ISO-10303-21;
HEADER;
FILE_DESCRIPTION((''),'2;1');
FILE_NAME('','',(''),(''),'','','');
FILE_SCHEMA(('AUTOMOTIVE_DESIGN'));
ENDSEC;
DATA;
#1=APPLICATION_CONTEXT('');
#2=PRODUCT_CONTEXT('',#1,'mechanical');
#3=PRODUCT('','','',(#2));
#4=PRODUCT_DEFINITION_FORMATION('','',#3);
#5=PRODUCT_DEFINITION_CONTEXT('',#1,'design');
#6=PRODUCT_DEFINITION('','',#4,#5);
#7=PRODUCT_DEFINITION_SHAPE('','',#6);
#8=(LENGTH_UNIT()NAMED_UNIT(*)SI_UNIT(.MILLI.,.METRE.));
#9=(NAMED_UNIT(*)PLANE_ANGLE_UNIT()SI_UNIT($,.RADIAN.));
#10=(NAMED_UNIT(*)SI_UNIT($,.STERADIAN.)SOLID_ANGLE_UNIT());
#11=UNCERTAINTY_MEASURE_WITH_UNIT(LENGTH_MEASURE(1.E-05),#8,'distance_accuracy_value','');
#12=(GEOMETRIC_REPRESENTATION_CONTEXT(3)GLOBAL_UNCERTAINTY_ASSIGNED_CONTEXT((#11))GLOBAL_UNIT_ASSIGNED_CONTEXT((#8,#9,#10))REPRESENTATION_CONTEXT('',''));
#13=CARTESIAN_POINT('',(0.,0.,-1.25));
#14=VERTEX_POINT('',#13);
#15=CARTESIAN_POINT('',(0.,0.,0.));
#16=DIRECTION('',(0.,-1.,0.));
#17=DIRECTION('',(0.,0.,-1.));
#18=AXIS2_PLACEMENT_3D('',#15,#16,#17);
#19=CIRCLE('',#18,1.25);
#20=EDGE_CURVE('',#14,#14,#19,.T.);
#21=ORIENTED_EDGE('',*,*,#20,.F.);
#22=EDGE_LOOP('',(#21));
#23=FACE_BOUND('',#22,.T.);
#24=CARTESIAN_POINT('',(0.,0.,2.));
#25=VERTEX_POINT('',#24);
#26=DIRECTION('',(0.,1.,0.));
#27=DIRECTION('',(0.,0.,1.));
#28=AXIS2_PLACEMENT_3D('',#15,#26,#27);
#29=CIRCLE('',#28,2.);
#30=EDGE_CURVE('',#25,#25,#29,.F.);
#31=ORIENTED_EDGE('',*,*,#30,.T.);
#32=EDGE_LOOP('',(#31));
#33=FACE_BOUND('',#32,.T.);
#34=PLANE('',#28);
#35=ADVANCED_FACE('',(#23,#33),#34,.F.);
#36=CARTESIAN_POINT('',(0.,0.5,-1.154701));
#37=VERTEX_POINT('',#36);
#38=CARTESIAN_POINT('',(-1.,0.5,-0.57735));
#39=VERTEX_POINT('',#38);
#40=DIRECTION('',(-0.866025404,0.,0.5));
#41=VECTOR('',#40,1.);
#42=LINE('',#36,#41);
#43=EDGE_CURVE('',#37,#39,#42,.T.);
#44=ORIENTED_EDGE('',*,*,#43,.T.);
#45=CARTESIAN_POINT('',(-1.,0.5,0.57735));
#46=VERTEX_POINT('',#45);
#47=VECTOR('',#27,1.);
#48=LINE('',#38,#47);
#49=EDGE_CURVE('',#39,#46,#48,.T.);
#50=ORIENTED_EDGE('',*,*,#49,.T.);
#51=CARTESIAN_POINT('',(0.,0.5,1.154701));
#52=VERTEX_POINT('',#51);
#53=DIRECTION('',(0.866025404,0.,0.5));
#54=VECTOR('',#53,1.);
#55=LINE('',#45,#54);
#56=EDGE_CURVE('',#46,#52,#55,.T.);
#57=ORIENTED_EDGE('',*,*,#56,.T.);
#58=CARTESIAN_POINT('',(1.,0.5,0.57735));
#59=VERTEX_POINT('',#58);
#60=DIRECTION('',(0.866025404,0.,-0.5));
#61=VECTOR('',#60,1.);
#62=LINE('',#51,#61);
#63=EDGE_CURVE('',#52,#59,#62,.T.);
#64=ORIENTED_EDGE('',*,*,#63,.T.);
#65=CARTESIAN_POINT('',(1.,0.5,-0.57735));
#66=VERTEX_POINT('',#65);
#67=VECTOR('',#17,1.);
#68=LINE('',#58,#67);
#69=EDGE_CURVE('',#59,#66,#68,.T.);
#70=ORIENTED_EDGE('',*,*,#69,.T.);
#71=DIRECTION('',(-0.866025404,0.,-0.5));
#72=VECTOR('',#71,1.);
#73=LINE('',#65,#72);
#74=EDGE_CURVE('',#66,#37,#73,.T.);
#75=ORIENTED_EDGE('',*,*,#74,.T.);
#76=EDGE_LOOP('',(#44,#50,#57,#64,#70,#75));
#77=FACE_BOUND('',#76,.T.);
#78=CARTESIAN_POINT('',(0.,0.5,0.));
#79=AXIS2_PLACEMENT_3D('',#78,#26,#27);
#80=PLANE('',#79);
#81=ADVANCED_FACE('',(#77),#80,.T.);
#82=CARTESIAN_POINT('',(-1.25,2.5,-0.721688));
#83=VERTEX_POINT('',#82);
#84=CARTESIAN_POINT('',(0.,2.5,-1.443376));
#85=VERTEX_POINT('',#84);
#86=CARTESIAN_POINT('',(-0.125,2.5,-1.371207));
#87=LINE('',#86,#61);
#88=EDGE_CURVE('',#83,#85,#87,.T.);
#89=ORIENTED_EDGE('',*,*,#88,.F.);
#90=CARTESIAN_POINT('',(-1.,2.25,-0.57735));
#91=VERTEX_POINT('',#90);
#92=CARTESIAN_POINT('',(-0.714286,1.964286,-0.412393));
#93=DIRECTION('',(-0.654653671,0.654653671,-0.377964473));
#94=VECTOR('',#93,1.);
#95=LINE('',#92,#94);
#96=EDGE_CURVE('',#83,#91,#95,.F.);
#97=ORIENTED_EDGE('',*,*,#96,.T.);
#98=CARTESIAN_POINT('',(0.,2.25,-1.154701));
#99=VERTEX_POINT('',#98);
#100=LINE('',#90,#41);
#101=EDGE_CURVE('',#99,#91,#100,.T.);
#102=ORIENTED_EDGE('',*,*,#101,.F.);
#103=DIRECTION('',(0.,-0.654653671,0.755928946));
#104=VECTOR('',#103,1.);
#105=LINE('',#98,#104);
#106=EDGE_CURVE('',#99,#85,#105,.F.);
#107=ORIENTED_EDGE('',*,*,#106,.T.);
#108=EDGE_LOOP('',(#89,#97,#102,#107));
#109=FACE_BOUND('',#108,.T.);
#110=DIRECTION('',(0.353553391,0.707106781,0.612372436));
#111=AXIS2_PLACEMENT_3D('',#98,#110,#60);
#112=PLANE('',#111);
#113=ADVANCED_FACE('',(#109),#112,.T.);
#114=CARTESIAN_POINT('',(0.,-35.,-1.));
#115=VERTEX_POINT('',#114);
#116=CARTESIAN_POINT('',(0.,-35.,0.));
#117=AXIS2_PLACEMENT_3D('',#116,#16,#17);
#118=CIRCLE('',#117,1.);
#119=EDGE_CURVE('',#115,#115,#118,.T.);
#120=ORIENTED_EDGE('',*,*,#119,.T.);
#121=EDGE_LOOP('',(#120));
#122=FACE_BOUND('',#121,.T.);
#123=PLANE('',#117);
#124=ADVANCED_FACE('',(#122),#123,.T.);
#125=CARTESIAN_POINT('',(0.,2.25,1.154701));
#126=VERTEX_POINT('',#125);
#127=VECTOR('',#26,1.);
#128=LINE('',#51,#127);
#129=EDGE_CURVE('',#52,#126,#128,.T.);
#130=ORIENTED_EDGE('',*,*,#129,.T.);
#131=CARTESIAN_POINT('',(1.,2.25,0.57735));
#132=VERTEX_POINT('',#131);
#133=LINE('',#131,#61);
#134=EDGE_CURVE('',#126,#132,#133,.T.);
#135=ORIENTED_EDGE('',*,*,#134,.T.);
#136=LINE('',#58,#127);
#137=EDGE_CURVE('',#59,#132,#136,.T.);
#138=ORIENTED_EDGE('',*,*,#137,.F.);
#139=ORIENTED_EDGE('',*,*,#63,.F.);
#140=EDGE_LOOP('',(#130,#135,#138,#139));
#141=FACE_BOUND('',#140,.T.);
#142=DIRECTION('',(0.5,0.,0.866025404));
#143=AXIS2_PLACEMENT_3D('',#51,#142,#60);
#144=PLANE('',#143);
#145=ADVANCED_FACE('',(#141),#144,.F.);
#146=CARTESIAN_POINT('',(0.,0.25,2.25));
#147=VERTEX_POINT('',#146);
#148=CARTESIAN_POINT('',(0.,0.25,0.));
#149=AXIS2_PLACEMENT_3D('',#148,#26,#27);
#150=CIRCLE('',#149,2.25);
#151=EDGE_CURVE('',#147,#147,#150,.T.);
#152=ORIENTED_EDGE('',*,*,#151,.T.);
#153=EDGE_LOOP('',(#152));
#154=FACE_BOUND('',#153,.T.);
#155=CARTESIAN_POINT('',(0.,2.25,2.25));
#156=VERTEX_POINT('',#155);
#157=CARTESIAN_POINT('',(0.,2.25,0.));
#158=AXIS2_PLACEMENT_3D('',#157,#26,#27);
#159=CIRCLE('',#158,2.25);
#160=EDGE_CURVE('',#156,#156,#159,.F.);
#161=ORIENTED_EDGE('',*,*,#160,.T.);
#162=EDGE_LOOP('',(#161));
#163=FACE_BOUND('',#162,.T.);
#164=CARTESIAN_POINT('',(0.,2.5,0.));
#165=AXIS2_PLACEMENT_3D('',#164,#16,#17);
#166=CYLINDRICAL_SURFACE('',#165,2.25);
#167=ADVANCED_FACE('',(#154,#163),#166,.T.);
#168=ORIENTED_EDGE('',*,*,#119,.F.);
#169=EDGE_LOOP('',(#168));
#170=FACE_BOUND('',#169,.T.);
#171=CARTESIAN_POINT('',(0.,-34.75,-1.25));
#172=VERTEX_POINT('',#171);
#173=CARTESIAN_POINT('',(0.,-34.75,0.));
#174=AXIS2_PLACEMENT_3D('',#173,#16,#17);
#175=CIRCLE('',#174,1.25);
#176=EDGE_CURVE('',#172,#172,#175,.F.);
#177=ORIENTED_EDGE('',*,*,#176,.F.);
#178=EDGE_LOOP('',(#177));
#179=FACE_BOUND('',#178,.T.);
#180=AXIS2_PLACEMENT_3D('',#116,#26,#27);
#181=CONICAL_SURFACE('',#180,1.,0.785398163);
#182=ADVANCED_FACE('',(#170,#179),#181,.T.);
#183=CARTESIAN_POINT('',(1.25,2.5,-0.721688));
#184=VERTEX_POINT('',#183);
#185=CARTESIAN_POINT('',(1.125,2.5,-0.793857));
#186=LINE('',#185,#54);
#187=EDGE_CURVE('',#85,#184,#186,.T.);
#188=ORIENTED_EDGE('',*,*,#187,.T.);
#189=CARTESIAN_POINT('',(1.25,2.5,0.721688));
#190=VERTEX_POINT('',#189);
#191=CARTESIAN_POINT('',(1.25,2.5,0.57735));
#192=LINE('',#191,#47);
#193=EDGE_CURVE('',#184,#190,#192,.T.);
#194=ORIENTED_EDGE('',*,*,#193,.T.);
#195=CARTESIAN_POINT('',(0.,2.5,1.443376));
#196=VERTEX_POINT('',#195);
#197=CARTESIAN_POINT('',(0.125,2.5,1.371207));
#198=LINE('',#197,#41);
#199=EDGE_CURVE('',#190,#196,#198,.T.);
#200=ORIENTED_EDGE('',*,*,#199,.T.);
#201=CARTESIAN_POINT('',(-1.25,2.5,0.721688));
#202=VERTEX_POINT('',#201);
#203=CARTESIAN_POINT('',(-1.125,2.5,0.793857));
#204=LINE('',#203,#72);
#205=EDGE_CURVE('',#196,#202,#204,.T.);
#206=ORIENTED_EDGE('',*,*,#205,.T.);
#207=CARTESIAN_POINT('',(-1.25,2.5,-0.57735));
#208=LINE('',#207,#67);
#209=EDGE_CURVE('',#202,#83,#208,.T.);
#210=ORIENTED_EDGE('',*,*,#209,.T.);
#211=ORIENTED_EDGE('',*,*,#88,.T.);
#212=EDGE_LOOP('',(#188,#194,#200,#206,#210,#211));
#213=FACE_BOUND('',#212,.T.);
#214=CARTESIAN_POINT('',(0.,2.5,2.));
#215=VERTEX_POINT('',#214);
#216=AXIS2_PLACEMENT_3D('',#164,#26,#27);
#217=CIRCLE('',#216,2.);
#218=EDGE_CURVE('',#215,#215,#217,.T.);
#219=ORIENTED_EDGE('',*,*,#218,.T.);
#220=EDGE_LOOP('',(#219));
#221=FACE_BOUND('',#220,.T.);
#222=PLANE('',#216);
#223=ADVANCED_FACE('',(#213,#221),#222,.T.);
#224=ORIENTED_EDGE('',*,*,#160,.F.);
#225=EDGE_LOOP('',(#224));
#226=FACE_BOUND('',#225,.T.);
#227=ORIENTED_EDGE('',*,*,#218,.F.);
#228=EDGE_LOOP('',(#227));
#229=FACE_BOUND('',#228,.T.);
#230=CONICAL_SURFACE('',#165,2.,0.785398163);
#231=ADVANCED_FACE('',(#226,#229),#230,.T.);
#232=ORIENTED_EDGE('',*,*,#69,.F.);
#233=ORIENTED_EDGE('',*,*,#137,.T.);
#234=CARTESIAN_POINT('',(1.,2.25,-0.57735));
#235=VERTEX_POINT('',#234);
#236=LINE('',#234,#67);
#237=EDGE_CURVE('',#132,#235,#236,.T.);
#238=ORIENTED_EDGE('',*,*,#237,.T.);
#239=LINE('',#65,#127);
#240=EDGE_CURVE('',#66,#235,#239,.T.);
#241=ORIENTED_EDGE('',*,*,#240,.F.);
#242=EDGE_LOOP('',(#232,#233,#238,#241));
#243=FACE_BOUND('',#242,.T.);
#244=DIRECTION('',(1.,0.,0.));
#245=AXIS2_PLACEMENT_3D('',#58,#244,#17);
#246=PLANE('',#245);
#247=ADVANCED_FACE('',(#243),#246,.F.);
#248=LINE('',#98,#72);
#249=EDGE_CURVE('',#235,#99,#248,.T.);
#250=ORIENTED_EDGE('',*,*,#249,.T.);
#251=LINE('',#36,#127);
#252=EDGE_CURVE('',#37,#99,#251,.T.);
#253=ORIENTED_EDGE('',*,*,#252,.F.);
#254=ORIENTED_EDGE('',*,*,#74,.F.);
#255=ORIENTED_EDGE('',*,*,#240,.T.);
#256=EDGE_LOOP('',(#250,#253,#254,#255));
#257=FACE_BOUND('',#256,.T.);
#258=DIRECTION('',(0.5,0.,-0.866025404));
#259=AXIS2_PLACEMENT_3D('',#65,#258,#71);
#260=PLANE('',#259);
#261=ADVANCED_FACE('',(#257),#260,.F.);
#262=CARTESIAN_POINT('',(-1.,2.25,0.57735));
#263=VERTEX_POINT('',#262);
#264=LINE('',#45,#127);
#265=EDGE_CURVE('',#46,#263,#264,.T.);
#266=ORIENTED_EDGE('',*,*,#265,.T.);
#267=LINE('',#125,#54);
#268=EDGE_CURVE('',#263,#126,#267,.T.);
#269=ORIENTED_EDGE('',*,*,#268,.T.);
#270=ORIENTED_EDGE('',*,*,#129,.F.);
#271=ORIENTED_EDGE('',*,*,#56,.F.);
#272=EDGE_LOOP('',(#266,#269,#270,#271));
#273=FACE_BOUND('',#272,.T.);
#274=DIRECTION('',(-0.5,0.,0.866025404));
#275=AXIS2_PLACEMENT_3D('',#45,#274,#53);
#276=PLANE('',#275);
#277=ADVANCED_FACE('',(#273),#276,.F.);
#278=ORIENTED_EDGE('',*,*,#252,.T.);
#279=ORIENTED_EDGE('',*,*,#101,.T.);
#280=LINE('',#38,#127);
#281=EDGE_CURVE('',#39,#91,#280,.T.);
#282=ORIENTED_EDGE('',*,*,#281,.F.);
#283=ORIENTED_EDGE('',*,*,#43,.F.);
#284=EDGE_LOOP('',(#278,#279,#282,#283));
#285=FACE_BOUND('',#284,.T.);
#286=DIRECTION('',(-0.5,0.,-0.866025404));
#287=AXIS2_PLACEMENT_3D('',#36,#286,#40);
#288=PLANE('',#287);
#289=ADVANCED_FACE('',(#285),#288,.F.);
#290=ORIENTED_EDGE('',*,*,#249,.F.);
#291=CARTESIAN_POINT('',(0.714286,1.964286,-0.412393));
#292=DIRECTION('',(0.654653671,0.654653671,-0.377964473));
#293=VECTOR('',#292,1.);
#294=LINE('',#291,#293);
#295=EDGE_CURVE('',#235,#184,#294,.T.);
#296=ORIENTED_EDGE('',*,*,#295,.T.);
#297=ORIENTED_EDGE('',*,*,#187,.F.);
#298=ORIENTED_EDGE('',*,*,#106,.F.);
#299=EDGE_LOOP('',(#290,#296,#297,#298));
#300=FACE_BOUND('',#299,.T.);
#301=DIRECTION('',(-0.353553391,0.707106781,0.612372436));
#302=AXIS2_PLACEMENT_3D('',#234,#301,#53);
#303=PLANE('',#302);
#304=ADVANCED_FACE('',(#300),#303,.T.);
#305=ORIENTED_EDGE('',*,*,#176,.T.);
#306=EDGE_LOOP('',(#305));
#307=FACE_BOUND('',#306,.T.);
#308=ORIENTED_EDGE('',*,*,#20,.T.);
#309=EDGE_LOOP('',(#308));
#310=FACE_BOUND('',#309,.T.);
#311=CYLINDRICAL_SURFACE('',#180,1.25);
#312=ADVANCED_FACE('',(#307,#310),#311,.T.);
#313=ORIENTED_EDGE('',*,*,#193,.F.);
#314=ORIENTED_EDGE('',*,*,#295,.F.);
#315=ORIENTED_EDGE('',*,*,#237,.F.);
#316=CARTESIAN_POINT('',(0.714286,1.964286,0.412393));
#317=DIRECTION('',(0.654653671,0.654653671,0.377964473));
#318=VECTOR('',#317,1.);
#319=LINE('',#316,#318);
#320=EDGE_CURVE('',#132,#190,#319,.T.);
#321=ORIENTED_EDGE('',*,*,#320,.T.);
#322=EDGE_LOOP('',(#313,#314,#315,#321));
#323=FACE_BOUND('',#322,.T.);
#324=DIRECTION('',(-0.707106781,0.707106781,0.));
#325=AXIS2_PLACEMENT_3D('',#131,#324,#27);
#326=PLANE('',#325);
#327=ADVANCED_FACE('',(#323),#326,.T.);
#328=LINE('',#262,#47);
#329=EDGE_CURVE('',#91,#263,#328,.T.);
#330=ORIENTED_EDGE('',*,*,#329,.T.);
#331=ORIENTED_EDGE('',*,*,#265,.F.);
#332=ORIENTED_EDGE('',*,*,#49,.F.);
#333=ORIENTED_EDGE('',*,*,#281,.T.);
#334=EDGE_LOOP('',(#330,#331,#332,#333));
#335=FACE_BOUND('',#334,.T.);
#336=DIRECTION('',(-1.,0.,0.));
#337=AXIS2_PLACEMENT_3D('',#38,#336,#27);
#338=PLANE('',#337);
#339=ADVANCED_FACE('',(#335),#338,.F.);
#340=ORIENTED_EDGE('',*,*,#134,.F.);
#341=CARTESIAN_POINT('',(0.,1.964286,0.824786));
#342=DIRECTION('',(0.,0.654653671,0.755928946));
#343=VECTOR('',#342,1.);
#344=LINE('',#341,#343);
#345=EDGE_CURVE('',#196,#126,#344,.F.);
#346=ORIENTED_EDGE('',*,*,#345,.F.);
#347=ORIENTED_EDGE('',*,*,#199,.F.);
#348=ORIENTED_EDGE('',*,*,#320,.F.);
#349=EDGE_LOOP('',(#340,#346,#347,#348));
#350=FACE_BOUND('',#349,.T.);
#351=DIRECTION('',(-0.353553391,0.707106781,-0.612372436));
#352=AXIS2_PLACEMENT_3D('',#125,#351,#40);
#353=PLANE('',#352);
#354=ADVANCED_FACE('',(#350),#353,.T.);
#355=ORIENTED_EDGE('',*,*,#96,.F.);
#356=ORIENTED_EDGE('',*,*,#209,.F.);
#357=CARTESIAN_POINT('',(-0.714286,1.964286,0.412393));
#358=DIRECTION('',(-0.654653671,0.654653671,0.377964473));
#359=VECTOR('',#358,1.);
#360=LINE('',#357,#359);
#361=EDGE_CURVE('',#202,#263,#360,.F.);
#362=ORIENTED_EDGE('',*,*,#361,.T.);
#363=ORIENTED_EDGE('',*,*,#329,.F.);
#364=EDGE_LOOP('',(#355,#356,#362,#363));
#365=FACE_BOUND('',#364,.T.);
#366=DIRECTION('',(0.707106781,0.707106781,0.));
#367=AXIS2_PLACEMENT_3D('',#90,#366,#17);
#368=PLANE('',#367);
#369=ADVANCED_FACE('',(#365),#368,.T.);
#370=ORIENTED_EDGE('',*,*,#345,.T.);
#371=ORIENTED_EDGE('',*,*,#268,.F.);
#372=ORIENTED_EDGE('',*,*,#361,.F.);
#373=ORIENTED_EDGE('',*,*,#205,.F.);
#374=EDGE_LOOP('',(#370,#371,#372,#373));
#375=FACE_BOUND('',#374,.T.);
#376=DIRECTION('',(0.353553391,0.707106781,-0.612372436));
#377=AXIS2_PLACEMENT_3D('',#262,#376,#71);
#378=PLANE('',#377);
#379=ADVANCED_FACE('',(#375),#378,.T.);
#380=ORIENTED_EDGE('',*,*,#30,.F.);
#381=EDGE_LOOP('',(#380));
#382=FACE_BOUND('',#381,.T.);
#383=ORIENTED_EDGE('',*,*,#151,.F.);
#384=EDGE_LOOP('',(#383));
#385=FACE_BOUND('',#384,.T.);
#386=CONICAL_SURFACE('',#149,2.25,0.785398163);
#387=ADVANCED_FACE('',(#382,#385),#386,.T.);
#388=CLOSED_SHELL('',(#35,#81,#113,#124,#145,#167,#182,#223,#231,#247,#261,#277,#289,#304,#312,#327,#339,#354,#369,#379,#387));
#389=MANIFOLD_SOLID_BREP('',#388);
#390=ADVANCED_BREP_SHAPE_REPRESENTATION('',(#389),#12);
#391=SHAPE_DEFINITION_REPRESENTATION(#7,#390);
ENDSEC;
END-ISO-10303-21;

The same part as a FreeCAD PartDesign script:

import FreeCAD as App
import Part
import Sketcher

V = App.Vector
Q = App.Units.Quantity


def edges_at(feature, points):
    """Names of the edges that pass closest to the given points."""
    edges = feature.Shape.Edges
    near = lambda p: min(range(len(edges)), key=lambda i: edges[i].distToShape(Part.Vertex(*p))[0])
    return sorted({f"Edge{near(p) + 1}" for p in points})


def add_polygon(sketch, points):
    """Adds a closed chain of lines whose ends are joined by coincident constraints."""
    first, n = sketch.GeometryCount, len(points)
    for a, b in zip(points, points[1:] + points[:1]):
        sketch.addGeometry(Part.LineSegment(App.Vector(*a, 0), App.Vector(*b, 0)), False)
    for i in range(n):
        sketch.addConstraint(Sketcher.Constraint("Coincident", first + i, 2, first + (i + 1) % n, 1))

doc = App.newDocument("Part")
body = doc.addObject("PartDesign::Body", "Body")

# Sketch on XZ plane
sketch1 = body.newObject("Sketcher::SketchObject", "Sketch")
sketch1.AttachmentSupport = (doc.getObject("XZ_Plane"), [""])
sketch1.MapMode = "FlatFace"
sketch1.addGeometry(Part.Circle(V(0, 0, 0), V(0, 0, 1), 2.25), False)
sketch1.addConstraint(Sketcher.Constraint("Coincident", 0, 3, -1, 1))
sketch1.addConstraint(Sketcher.Constraint("Diameter", 0, 4.5))
pad1 = body.newObject("PartDesign::Pad", "Pad")
pad1.Profile = sketch1
pad1.Length = 2.5
pad1.Reversed = True

# Sketch on XZ plane
sketch2 = body.newObject("Sketcher::SketchObject", "Sketch001")
sketch2.AttachmentSupport = (doc.getObject("XZ_Plane"), [""])
sketch2.MapMode = "FlatFace"
sketch2.AttachmentOffset = App.Placement(V(0, 0, -2.5), App.Rotation())
add_polygon(sketch2, [(0, -1.154701), (-1, -0.57735), (-1, 0.57735), (0, 1.154701), (1, 0.57735), (1, -0.57735)])  # lines 0-5
sketch2.addConstraint(Sketcher.Constraint("Vertical", 1))
sketch2.addConstraint(Sketcher.Constraint("Vertical", 4))
sketch2.addConstraint(Sketcher.Constraint("Symmetric", 0, 2, 3, 2, -1, 1))
sketch2.addConstraint(Sketcher.Constraint("Symmetric", 2, 2, 5, 2, -1, 1))
sketch2.addConstraint(Sketcher.Constraint("PointOnObject", 2, 2, -2))
sketch2.addConstraint(Sketcher.Constraint("Parallel", 2, 5))
sketch2.addConstraint(Sketcher.Constraint("Horizontal", 1, 2, 3, 2))
sketch2.addConstraint(Sketcher.Constraint("Angle", 0, Q("150 deg")))
sketch2.addConstraint(Sketcher.Constraint("DistanceX", 0, 2, -1, 1, 1.0))
sketch2.addConstraint(Sketcher.Constraint("DistanceY", 1, 1, 1, 2, 1.154701))
pocket1 = body.newObject("PartDesign::Pocket", "Pocket")
pocket1.Profile = sketch2
pocket1.Length = 2
pocket1.Reversed = True

# Sketch on XZ plane
sketch3 = body.newObject("Sketcher::SketchObject", "Sketch002")
sketch3.AttachmentSupport = (doc.getObject("XZ_Plane"), [""])
sketch3.MapMode = "FlatFace"
sketch3.addGeometry(Part.Circle(V(0, 0, 0), V(0, 0, 1), 1.25), False)
sketch3.addConstraint(Sketcher.Constraint("Coincident", 0, 3, -1, 1))
sketch3.addConstraint(Sketcher.Constraint("Diameter", 0, 2.5))
pad2 = body.newObject("PartDesign::Pad", "Pad001")
pad2.Profile = sketch3
pad2.Length = 35
doc.recompute()

chamfer = body.newObject("PartDesign::Chamfer", "Chamfer")
chamfer.Base = (pad2, edges_at(pad2, [
    (0.5, 2.5, -0.866),
    (-0.5, 2.5, -0.866),
    (-1, 2.5, 0),
    (-0.5, 2.5, 0.866),
    (0.5, 2.5, 0.866),
    (1, 2.5, 0),
    (0, 0, -2.25),
    (0, -35, 1.25),
    (0, 2.5, -2.25),
]))
chamfer.Size = 0.25

doc.recompute()
